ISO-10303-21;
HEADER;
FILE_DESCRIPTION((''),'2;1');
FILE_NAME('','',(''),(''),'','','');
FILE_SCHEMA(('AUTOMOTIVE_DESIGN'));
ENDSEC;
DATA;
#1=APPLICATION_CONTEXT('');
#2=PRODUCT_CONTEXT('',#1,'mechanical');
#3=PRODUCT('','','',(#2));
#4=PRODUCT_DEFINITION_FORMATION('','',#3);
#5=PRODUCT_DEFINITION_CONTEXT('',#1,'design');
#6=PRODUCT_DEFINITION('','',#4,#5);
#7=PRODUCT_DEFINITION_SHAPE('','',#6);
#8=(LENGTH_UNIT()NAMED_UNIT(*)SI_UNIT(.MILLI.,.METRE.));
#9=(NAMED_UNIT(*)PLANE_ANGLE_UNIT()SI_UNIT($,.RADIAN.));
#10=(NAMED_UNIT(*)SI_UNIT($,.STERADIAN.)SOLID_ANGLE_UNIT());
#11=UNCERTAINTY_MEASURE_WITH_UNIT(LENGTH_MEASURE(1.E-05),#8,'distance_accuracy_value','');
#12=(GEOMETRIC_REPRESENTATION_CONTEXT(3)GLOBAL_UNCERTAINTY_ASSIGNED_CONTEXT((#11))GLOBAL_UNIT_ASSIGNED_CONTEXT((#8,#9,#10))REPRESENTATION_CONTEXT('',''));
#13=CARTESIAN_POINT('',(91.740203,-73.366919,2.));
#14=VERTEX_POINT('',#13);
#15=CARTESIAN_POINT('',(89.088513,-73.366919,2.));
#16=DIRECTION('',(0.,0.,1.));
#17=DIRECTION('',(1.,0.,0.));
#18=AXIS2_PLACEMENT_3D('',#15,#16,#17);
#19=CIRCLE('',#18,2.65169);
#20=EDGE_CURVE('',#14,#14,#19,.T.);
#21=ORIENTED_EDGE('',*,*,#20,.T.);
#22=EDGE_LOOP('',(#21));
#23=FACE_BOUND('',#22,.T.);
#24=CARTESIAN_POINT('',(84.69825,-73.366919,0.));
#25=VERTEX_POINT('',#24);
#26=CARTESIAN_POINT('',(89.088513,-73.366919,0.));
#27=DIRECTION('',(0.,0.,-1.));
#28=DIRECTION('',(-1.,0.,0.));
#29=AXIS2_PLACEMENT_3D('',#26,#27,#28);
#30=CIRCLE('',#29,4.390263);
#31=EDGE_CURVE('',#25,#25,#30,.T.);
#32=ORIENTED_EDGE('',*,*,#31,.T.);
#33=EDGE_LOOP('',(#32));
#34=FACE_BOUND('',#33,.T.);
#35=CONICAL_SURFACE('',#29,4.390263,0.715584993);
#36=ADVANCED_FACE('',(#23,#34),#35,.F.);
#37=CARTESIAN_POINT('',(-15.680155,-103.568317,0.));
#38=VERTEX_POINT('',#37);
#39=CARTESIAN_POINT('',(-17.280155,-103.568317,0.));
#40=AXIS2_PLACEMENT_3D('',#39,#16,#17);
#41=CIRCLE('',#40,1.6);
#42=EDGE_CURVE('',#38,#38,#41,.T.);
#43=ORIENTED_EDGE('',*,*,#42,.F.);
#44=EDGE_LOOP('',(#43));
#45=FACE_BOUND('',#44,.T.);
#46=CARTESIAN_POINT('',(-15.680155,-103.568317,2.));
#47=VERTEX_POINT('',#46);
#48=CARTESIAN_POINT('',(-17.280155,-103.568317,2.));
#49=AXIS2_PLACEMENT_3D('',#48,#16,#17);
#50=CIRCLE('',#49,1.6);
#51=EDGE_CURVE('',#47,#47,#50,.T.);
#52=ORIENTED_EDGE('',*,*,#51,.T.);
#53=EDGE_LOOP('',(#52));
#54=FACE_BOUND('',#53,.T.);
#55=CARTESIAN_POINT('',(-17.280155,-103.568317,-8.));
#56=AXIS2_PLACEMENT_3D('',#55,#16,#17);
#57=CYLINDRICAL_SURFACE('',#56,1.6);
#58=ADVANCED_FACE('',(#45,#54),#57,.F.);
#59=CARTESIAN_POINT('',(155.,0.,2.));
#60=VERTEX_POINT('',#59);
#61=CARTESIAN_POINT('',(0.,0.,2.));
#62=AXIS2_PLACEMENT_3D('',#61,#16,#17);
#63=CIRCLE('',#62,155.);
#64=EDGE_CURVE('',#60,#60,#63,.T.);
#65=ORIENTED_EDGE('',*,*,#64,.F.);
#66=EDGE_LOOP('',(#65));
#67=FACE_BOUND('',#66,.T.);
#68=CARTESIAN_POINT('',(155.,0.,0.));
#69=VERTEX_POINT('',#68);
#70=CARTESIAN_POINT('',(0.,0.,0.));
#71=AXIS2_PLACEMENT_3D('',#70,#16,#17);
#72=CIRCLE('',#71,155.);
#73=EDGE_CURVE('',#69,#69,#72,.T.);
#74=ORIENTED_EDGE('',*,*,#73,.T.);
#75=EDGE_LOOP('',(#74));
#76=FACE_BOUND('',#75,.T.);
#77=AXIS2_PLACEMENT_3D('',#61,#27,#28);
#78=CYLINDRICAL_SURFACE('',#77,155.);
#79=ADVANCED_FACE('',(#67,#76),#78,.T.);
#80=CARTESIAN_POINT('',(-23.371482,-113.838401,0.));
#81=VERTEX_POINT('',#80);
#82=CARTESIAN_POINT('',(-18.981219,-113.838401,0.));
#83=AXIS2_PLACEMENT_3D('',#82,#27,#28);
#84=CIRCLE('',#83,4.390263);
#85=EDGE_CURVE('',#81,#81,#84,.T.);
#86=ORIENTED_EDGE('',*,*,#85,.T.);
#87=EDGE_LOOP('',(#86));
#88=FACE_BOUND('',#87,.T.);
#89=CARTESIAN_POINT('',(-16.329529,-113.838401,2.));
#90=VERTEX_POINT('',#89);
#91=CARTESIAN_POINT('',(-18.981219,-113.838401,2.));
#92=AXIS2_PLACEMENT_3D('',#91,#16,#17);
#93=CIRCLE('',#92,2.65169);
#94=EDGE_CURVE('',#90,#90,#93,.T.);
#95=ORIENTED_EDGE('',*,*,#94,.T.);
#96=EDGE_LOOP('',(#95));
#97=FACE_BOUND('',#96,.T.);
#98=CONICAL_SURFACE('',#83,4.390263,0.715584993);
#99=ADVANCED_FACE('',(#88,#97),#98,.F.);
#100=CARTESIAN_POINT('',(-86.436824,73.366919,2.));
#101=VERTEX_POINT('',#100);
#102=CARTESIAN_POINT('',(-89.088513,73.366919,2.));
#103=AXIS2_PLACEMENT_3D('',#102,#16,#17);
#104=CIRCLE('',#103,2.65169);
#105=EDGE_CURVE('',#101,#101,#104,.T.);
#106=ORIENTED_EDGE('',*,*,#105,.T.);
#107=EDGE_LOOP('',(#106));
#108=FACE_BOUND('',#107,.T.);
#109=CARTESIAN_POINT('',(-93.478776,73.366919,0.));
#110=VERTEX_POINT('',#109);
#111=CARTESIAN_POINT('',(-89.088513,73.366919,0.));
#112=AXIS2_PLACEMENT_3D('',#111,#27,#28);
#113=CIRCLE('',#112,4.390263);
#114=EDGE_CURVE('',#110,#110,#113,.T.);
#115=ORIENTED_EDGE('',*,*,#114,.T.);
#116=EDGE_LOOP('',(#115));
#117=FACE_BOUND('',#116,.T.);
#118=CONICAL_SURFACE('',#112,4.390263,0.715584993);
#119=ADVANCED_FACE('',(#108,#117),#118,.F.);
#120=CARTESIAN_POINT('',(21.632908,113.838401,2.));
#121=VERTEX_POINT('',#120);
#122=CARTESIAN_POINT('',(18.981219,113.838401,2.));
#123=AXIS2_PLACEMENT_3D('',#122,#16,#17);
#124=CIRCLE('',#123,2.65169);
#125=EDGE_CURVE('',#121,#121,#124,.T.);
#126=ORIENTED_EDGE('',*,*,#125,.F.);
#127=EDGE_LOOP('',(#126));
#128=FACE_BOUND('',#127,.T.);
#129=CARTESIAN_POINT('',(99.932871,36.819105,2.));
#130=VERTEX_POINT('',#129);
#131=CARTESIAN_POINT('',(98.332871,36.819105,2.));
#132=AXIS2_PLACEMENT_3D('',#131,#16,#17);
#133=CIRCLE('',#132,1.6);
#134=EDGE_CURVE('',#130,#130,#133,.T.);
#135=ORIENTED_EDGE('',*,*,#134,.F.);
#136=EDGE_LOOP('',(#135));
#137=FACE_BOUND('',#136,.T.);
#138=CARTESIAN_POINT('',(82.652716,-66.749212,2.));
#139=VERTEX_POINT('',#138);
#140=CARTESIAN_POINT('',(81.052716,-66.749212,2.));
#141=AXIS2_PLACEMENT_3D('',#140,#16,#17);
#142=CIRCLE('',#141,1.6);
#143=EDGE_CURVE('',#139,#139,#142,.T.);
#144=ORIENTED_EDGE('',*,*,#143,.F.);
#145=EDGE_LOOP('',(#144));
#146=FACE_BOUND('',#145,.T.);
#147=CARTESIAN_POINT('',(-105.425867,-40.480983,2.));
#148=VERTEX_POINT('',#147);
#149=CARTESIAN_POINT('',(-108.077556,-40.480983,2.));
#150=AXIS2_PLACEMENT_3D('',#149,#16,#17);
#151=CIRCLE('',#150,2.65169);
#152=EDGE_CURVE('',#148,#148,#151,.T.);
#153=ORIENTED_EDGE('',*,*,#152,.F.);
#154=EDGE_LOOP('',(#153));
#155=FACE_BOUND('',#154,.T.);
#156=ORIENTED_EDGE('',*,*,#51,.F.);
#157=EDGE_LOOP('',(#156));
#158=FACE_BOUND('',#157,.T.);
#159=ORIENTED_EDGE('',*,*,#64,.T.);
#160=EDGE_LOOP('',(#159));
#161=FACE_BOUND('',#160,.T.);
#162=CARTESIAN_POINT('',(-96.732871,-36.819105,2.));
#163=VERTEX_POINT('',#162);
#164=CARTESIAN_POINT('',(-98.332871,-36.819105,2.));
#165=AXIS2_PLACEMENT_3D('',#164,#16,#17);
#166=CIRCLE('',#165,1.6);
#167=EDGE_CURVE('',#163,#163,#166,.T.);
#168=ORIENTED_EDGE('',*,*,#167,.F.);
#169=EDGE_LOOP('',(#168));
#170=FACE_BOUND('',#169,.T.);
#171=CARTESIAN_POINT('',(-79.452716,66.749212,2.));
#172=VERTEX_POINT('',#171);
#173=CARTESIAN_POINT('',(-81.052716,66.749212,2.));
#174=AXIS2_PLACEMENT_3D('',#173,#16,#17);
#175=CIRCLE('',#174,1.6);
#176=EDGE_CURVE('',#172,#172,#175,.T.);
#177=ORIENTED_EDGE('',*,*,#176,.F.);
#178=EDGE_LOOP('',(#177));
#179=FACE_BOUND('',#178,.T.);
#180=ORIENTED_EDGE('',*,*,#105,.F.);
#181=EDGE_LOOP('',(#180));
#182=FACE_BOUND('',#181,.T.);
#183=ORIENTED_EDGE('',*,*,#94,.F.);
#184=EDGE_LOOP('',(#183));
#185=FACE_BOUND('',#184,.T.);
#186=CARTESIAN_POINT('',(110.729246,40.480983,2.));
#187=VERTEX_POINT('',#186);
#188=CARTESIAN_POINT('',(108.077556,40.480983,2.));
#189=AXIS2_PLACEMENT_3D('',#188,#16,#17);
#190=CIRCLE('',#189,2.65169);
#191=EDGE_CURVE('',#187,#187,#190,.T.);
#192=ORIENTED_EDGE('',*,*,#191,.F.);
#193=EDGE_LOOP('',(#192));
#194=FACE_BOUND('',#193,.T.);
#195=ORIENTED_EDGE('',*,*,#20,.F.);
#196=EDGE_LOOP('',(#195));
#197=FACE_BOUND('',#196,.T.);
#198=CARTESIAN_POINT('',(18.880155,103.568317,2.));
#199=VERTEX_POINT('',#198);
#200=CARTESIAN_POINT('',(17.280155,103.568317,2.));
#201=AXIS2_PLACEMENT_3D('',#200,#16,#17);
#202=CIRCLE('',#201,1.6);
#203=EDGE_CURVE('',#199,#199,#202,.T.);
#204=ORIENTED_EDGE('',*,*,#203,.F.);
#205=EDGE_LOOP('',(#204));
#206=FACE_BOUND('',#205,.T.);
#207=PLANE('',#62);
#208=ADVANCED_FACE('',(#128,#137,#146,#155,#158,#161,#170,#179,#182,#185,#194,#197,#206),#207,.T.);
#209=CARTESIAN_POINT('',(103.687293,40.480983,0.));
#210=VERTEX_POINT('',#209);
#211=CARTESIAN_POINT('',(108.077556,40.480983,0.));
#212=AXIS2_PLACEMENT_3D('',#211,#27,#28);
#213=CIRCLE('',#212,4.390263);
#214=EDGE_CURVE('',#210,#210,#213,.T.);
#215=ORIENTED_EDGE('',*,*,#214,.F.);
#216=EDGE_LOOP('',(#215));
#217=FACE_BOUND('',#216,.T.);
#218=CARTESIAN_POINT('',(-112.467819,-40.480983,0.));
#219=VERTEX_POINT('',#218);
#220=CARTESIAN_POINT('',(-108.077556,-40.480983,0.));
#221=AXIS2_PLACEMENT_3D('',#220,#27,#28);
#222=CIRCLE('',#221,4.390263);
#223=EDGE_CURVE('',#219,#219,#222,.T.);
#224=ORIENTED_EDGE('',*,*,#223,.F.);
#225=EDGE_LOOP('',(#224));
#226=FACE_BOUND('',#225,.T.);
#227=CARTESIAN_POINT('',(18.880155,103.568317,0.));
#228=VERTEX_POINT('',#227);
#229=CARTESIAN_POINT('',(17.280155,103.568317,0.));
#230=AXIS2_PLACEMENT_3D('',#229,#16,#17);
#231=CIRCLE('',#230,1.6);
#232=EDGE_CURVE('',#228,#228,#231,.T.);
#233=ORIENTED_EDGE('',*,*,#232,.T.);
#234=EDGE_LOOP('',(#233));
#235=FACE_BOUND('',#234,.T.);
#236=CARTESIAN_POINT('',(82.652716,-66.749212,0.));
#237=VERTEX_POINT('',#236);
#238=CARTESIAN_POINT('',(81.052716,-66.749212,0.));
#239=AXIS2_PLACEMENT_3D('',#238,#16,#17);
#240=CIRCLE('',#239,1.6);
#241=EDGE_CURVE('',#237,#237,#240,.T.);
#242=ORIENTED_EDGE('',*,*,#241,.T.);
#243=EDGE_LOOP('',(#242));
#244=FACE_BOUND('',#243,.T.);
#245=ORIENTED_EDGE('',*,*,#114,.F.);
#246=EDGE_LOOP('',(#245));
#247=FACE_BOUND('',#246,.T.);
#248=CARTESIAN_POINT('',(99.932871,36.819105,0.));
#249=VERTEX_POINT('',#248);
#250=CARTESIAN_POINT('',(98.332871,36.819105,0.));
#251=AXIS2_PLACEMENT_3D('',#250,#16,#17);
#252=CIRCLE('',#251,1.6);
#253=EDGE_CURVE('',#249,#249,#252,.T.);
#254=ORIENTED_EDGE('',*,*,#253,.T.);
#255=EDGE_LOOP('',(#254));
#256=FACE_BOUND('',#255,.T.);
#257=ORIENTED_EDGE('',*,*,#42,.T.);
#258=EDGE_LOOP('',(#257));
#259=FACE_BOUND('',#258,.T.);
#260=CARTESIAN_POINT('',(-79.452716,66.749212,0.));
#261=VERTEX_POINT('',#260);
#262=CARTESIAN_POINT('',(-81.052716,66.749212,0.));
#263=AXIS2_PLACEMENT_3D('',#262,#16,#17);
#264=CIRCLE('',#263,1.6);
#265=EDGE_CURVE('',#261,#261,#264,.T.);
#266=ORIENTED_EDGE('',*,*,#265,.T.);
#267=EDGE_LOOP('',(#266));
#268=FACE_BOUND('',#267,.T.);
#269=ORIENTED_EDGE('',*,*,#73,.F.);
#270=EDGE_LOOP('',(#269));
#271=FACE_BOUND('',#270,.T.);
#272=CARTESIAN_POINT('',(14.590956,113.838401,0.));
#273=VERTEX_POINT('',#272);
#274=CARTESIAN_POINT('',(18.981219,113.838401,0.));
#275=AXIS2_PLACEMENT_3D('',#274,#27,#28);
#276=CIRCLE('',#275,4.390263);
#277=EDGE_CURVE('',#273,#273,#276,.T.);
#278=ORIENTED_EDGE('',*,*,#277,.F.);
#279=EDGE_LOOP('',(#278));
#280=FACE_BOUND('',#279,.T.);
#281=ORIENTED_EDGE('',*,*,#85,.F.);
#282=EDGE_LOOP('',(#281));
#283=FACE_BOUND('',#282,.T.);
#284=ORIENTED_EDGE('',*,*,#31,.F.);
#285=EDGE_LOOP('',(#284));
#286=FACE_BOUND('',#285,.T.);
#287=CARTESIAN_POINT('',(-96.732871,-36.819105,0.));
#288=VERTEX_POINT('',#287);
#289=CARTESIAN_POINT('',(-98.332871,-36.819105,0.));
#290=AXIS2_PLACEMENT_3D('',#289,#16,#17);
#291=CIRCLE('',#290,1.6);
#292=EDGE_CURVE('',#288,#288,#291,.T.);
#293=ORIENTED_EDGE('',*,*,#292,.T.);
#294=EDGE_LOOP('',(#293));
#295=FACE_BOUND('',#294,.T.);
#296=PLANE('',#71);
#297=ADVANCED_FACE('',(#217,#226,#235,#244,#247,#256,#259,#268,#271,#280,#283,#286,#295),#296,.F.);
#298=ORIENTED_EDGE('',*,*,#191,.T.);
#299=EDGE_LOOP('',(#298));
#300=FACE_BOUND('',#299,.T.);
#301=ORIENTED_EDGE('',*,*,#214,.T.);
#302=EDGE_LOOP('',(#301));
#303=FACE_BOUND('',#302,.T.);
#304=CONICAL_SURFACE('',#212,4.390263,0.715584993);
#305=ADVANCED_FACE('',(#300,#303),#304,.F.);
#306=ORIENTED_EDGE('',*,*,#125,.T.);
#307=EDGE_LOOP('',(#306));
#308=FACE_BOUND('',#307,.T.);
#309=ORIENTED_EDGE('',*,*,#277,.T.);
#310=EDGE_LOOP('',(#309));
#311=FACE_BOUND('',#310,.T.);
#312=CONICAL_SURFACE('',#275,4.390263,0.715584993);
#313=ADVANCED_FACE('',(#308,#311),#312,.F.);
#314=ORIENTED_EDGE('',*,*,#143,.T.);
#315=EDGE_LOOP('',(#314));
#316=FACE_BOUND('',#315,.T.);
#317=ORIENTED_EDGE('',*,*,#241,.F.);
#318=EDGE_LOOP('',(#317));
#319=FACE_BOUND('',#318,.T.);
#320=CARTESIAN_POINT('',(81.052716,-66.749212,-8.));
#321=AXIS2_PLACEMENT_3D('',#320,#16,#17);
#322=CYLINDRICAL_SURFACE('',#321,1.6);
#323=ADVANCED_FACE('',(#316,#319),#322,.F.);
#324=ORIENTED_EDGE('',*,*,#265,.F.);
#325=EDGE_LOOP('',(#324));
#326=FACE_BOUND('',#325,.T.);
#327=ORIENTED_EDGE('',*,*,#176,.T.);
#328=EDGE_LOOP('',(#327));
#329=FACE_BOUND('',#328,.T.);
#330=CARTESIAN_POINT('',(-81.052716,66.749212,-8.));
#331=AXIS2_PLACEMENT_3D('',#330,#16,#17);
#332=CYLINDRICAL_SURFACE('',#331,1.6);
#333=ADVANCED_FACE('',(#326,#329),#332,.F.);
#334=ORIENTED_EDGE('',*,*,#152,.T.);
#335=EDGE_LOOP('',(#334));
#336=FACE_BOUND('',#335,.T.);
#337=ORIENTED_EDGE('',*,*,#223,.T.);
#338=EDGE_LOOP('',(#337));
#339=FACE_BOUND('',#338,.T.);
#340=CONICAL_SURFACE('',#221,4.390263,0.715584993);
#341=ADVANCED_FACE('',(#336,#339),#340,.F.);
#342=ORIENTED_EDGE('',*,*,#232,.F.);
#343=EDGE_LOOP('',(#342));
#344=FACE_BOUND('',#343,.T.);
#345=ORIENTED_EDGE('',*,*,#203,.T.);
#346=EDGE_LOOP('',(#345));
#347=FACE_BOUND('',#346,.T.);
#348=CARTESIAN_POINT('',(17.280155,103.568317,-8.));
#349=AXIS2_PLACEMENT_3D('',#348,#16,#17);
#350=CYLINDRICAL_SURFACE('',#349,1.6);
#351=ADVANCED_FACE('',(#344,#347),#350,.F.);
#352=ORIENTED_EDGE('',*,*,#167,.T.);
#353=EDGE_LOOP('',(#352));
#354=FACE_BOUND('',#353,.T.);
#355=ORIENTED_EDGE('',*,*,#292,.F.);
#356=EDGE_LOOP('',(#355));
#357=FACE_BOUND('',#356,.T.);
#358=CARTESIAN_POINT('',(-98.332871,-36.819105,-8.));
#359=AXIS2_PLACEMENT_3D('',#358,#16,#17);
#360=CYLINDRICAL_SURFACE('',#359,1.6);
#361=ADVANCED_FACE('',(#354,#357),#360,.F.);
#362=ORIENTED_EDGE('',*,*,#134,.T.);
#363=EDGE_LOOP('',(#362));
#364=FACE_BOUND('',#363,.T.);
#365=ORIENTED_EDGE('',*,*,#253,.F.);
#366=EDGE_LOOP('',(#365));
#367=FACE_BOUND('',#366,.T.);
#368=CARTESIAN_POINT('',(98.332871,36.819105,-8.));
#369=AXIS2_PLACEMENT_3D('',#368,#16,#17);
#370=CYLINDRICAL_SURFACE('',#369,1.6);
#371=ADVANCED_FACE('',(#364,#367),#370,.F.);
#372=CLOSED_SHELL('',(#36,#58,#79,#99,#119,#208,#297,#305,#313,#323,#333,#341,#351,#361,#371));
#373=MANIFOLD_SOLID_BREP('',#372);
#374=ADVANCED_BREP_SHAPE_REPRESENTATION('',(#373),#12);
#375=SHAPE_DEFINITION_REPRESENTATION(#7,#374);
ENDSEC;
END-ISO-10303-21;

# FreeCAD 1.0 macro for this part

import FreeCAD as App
import Part
import Sketcher

doc = App.newDocument("Part")
params = doc.addObject("Spreadsheet::Sheet", "Params")
for row, (alias, value) in enumerate([
    ("sketch1_diameter", "310 mm"),
    ("pad1_length", "2 mm"),
    ("sketch2_diameter", "3.2 mm"),
    ("pocket1_length", "10 mm"),
    ("hole_diameter", "4.4958 mm"),
    ("hole_depth", "10.71 mm"),
    ("hole_csink_diameter", "8.780526 mm"),
], start=1):
    params.set(f"A{row}", alias)
    params.set(f"B{row}", "=" + value)
    params.setAlias(f"B{row}", alias)

body = doc.addObject("PartDesign::Body", "Body")

# Sketch on XY plane
sketch1 = doc.addObject("Sketcher::SketchObject", "Sketch")
body.addObject(sketch1)
sketch1.AttachmentSupport = (doc.XY_Plane, [""])
sketch1.MapMode = "FlatFace"
sketch1.addGeometry(Part.Circle(App.Vector(0, 0, 0), App.Vector(0, 0, 1), 155), False)
sketch1.addConstraint([
    Sketcher.Constraint("Coincident", 0, 3, -1, 1),
    Sketcher.Constraint("Diameter", 0, 310.0),
])
sketch1.setExpression("Constraints[1]", "Params.sketch1_diameter")
pad1 = doc.addObject("PartDesign::Pad", "Pad")
body.addObject(pad1)
pad1.Profile = sketch1
pad1.setExpression("Length", "Params.pad1_length")

# Sketch on XY plane
sketch2 = doc.addObject("Sketcher::SketchObject", "Sketch001")
body.addObject(sketch2)
sketch2.AttachmentSupport = (doc.XY_Plane, [""])
sketch2.MapMode = "FlatFace"
sketch2.AttachmentOffset = App.Placement(App.Vector(0, 0, 2), App.Rotation())
sketch2.addGeometry([
    Part.Circle(App.Vector(17.3, 103.6, 0), App.Vector(0, 0, 1), 1.6),  # 0
    Part.Circle(App.Vector(-81.1, 66.7, 0), App.Vector(0, 0, 1), 1.6),  # 1
    Part.Circle(App.Vector(-98.3, -36.8, 0), App.Vector(0, 0, 1), 1.6),  # 2
    Part.Circle(App.Vector(-17.3, -103.6, 0), App.Vector(0, 0, 1), 1.6),  # 3
    Part.Circle(App.Vector(81.1, -66.7, 0), App.Vector(0, 0, 1), 1.6),  # 4
    Part.Circle(App.Vector(98.3, 36.8, 0), App.Vector(0, 0, 1), 1.6),  # 5
], False)
sketch2.addConstraint([
    Sketcher.Constraint("Equal", 0, 1),
    Sketcher.Constraint("Equal", 1, 2),
    Sketcher.Constraint("Equal", 2, 3),
    Sketcher.Constraint("Equal", 3, 4),
    Sketcher.Constraint("Equal", 4, 5),
    Sketcher.Constraint("Symmetric", 0, 3, 3, 3, -1, 1),
    Sketcher.Constraint("Symmetric", 1, 3, 4, 3, -1, 1),
    Sketcher.Constraint("Symmetric", 2, 3, 5, 3, -1, 1),
    Sketcher.Constraint("Diameter", 0, 3.2),
    Sketcher.Constraint("DistanceY", -1, 1, 1, 3, 66.749212),
    Sketcher.Constraint("DistanceX", 2, 3, -1, 1, 98.332871),
    Sketcher.Constraint("DistanceX", 1, 3, 0, 3, 98.332871),
    Sketcher.Constraint("DistanceY", 2, 3, 0, 3, 140.387422),
    Sketcher.Constraint("DistanceY", 3, 3, 2, 3, 66.749212),
    Sketcher.Constraint("DistanceX", 1, 3, 3, 3, 63.77256),
])
sketch2.setExpression("Constraints[8]", "Params.sketch2_diameter")
pocket1 = doc.addObject("PartDesign::Pocket", "Pocket")
body.addObject(pocket1)
pocket1.Profile = sketch2
pocket1.setExpression("Length", "Params.pocket1_length")

# Sketch on XY plane
sketch3 = doc.addObject("Sketcher::SketchObject", "Sketch002")
body.addObject(sketch3)
sketch3.AttachmentSupport = (doc.XY_Plane, [""])
sketch3.MapMode = "FlatFace"
sketch3.addGeometry([
    Part.Circle(App.Vector(19, 113.8, 0), App.Vector(0, 0, 1), 2.2),  # 0
    Part.Circle(App.Vector(-89.1, 73.4, 0), App.Vector(0, 0, 1), 2.2),  # 1
    Part.Circle(App.Vector(-108.1, -40.5, 0), App.Vector(0, 0, 1), 2.2),  # 2
    Part.Circle(App.Vector(108.1, 40.5, 0), App.Vector(0, 0, 1), 2.2),  # 3
    Part.Circle(App.Vector(89.1, -73.4, 0), App.Vector(0, 0, 1), 2.2),  # 4
    Part.Circle(App.Vector(-19, -113.8, 0), App.Vector(0, 0, 1), 2.2),  # 5
], False)
sketch3.addConstraint([
    Sketcher.Constraint("Equal", 0, 1),
    Sketcher.Constraint("Equal", 1, 2),
    Sketcher.Constraint("Equal", 2, 3),
    Sketcher.Constraint("Equal", 3, 4),
    Sketcher.Constraint("Equal", 4, 5),
    Sketcher.Constraint("Symmetric", 2, 3, 3, 3, -1, 1),
    Sketcher.Constraint("Symmetric", 1, 3, 4, 3, -1, 1),
    Sketcher.Constraint("Symmetric", 0, 3, 5, 3, -1, 1),
    Sketcher.Constraint("Diameter", 0, 4.4958),
    Sketcher.Constraint("DistanceY", -1, 1, 0, 3, 113.838401),
    Sketcher.Constraint("DistanceX", -1, 1, 0, 3, 18.981219),
    Sketcher.Constraint("DistanceY", -1, 1, 1, 3, 73.366919),
    Sketcher.Constraint("DistanceX", 1, 3, 3, 3, 197.16607),
    Sketcher.Constraint("DistanceX", 1, 3, -1, 1, 89.088513),
    Sketcher.Constraint("DistanceY", 2, 3, -1, 1, 40.480983),
])
doc.recompute()
hole = doc.addObject("PartDesign::Hole", "Hole")
body.addObject(hole)
hole.Profile = sketch3
hole.ThreadType = "None"
hole.setExpression("Diameter", "Params.hole_diameter")
hole.DepthType = "Dimension"
hole.setExpression("Depth", "Params.hole_depth")
hole.DrillPoint = "Angled"
hole.DrillPointAngle = 118
hole.HoleCutType = "Countersink"
hole.setExpression("HoleCutDiameter", "Params.hole_csink_diameter")
hole.HoleCutCountersinkAngle = 82
hole.Reversed = True

doc.recompute()
